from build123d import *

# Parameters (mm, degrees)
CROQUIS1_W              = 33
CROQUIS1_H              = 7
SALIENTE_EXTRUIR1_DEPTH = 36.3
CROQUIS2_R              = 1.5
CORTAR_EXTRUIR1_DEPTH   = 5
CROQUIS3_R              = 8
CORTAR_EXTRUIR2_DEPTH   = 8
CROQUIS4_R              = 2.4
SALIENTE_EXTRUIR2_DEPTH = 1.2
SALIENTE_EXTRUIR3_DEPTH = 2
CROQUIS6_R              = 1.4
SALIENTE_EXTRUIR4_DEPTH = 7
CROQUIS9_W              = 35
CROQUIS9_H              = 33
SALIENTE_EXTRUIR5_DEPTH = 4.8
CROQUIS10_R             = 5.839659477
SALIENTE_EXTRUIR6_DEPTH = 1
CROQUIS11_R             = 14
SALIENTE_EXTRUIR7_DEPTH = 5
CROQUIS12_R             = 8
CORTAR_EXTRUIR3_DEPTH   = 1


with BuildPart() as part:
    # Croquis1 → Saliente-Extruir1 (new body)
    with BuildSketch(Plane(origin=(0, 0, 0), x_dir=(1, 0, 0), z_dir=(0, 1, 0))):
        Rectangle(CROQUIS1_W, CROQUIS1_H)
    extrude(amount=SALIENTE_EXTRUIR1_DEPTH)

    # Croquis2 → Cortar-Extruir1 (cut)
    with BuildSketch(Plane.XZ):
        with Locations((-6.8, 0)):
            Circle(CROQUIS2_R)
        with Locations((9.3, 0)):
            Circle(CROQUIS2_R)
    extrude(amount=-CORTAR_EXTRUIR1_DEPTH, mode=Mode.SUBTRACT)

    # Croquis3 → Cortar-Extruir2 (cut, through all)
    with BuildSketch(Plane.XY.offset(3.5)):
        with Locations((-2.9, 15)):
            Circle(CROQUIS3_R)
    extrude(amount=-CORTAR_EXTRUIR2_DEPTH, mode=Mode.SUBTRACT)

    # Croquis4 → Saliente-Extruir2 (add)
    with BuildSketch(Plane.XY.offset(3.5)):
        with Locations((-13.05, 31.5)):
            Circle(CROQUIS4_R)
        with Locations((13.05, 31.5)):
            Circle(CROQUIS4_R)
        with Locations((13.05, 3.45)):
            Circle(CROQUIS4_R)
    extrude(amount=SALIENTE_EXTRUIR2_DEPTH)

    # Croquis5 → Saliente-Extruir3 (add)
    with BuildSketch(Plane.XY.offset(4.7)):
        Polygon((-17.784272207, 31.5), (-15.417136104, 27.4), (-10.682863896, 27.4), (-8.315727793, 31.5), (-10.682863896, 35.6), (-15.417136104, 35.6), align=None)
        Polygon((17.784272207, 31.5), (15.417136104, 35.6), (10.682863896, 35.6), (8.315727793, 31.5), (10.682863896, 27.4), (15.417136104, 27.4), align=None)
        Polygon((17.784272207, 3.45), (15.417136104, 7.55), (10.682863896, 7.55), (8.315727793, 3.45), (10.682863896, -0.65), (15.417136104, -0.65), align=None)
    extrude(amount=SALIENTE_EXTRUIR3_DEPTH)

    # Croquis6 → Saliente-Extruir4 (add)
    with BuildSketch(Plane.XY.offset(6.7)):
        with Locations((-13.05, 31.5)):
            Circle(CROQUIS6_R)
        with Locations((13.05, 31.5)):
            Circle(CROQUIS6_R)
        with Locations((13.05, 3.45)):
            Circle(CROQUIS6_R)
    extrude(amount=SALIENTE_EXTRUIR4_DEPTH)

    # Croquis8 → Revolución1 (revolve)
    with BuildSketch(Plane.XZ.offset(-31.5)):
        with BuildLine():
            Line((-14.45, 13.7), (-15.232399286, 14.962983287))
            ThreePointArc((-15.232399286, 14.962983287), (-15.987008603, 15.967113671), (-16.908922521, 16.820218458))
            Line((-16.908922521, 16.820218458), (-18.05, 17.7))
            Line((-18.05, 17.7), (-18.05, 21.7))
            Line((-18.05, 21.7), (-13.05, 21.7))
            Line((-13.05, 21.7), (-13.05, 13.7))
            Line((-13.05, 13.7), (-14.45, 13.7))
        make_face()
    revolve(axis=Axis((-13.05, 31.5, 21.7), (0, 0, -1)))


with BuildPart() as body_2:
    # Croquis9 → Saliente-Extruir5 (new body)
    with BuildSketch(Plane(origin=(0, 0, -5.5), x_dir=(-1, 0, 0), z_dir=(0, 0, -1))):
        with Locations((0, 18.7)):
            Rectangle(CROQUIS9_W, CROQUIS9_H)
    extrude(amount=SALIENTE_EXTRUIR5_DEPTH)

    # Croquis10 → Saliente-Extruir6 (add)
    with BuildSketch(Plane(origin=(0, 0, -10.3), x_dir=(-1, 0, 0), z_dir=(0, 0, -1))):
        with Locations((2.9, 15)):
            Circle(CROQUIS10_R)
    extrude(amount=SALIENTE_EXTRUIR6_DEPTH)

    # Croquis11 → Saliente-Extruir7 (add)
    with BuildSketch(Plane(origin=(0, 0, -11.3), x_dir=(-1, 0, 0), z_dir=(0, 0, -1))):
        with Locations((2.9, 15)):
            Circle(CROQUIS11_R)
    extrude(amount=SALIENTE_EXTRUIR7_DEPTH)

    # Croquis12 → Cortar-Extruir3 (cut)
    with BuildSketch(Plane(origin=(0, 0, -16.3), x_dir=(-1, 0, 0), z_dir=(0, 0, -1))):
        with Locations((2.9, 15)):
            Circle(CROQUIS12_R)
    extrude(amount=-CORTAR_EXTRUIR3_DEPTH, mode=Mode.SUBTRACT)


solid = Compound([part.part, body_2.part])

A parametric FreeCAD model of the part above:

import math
import FreeCAD as App
import Part
import Sketcher

V = App.Vector
Q = App.Units.Quantity

doc = App.newDocument("Part")
params = doc.addObject("Spreadsheet::Sheet", "Params")
for row, (alias, value) in enumerate([
    ("sketch1_width", "33 mm"),
    ("sketch1_height", "7 mm"),
    ("pad1_length", "36.3 mm"),
    ("sketch2_diameter", "3 mm"),
    ("pocket1_length", "5 mm"),
    ("sketch3_diameter", "16 mm"),
    ("sketch4_diameter", "4.8 mm"),
    ("pad2_length", "1.2 mm"),
    ("pad3_length", "2 mm"),
    ("sketch6_diameter", "2.8 mm"),
    ("pad4_length", "7 mm"),
    ("sketch7_radius", "7 mm"),
    ("sketch7_width", "5 mm"),
    ("sketch7_height", "8 mm"),
    ("sketch7_height2", "4 mm"),
    ("sketch7_width2", "1.4 mm"),
    ("revolution_angle", "360 deg"),
    ("sketch8_width", "35 mm"),
    ("sketch8_height", "33 mm"),
    ("pad5_length", "4.8 mm"),
    ("pad6_length", "1 mm"),
    ("sketch10_diameter", "28 mm"),
    ("pad7_length", "5 mm"),
    ("sketch11_diameter", "16 mm"),
    ("pocket3_length", "1 mm"),
], start=1):
    params.set(f"A{row}", alias)
    params.set(f"B{row}", "=" + value)
    params.setAlias(f"B{row}", alias)

body = doc.addObject("PartDesign::Body", "Body")

# Sketch on XZ plane
sketch1 = body.newObject("Sketcher::SketchObject", "Sketch")
sketch1.AttachmentSupport = (doc.getObject("XZ_Plane"), [""])
sketch1.MapMode = "FlatFace"
sketch1.addGeometry([
    Part.LineSegment(V(-16.5, -3.5, 0), V(-16.5, 3.5, 0)),
    Part.LineSegment(V(-16.5, 3.5, 0), V(16.5, 3.5, 0)),
    Part.LineSegment(V(16.5, 3.5, 0), V(16.5, -3.5, 0)),
    Part.LineSegment(V(16.5, -3.5, 0), V(-16.5, -3.5, 0)),
], False)
sketch1.addConstraint([
    Sketcher.Constraint("Coincident", 0, 2, 1, 1),
    Sketcher.Constraint("Coincident", 1, 2, 2, 1),
    Sketcher.Constraint("Coincident", 2, 2, 3, 1),
    Sketcher.Constraint("Coincident", 3, 2, 0, 1),
    Sketcher.Constraint("Vertical", 0),
    Sketcher.Constraint("Horizontal", 1),
    Sketcher.Constraint("Vertical", 2),
    Sketcher.Constraint("Horizontal", 3),
    Sketcher.Constraint("Symmetric", 0, 2, 2, 2, -1, 1),
    Sketcher.Constraint("DistanceX", 1, 1, 1, 2, 33.0),
    Sketcher.Constraint("DistanceY", 0, 1, 0, 2, 7.0),
])
sketch1.setExpression("Constraints[9]", "Params.sketch1_width")
sketch1.setExpression("Constraints[10]", "Params.sketch1_height")
pad1 = body.newObject("PartDesign::Pad", "Pad")
pad1.Profile = sketch1
pad1.setExpression("Length", "Params.pad1_length")
pad1.Reversed = True

# Sketch on XZ plane
sketch2 = body.newObject("Sketcher::SketchObject", "Sketch001")
sketch2.AttachmentSupport = (doc.getObject("XZ_Plane"), [""])
sketch2.MapMode = "FlatFace"
sketch2.addGeometry([
    Part.Circle(V(-6.8, 0, 0), V(0, 0, 1), 1.5),
    Part.Circle(V(9.3, 0, 0), V(0, 0, 1), 1.5),
], False)
sketch2.addConstraint([
    Sketcher.Constraint("Equal", 0, 1),
    Sketcher.Constraint("PointOnObject", 0, 3, -1),
    Sketcher.Constraint("PointOnObject", 1, 3, -1),
    Sketcher.Constraint("Diameter", 0, 3.0),
    Sketcher.Constraint("DistanceX", 0, 3, -1, 1, 6.8),
    Sketcher.Constraint("DistanceX", -1, 1, 1, 3, 9.3),
])
sketch2.setExpression("Constraints[3]", "Params.sketch2_diameter")
pocket1 = body.newObject("PartDesign::Pocket", "Pocket")
pocket1.Profile = sketch2
pocket1.setExpression("Length", "Params.pocket1_length")

# Sketch on XY plane
sketch3 = body.newObject("Sketcher::SketchObject", "Sketch002")
sketch3.AttachmentSupport = (doc.getObject("XY_Plane"), [""])
sketch3.MapMode = "FlatFace"
sketch3.AttachmentOffset = App.Placement(V(0, 0, 3.5), App.Rotation())
sketch3.addGeometry(Part.Circle(V(-2.9, 15, 0), V(0, 0, 1), 8), False)
sketch3.addConstraint([
    Sketcher.Constraint("Diameter", 0, 16.0),
    Sketcher.Constraint("DistanceY", -1, 1, 0, 3, 15.0),
    Sketcher.Constraint("DistanceX", 0, 3, -1, 1, 2.9),
])
sketch3.setExpression("Constraints[0]", "Params.sketch3_diameter")
pocket2 = body.newObject("PartDesign::Pocket", "Pocket001")
pocket2.Profile = sketch3
pocket2.Type = "ThroughAll"

# Sketch on XY plane
sketch4 = body.newObject("Sketcher::SketchObject", "Sketch003")
sketch4.AttachmentSupport = (doc.getObject("XY_Plane"), [""])
sketch4.MapMode = "FlatFace"
sketch4.AttachmentOffset = App.Placement(V(0, 0, 3.5), App.Rotation())
sketch4.addGeometry([
    Part.Circle(V(-13.05, 31.5, 0), V(0, 0, 1), 2.4),
    Part.Circle(V(13.05, 31.5, 0), V(0, 0, 1), 2.4),
    Part.Circle(V(13.05, 3.45, 0), V(0, 0, 1), 2.4),
], False)
sketch4.addConstraint([
    Sketcher.Constraint("Equal", 0, 1),
    Sketcher.Constraint("Equal", 1, 2),
    Sketcher.Constraint("Symmetric", 0, 3, 1, 3, -2),
    Sketcher.Constraint("Vertical", 1, 3, 2, 3),
    Sketcher.Constraint("Diameter", 0, 4.8),
    Sketcher.Constraint("DistanceY", -1, 1, 0, 3, 31.5),
    Sketcher.Constraint("DistanceX", 0, 3, 1, 3, 26.1),
    Sketcher.Constraint("DistanceY", -1, 1, 2, 3, 3.45),
])
sketch4.setExpression("Constraints[4]", "Params.sketch4_diameter")
pad2 = body.newObject("PartDesign::Pad", "Pad001")
pad2.Profile = sketch4
pad2.setExpression("Length", "Params.pad2_length")

# Sketch on XY plane
sketch5 = body.newObject("Sketcher::SketchObject", "Sketch004")
sketch5.AttachmentSupport = (doc.getObject("XY_Plane"), [""])
sketch5.MapMode = "FlatFace"
sketch5.AttachmentOffset = App.Placement(V(0, 0, 4.7), App.Rotation())
sketch5.addGeometry([
    Part.LineSegment(V(-17.784272, 31.5, 0), V(-15.417136, 27.4, 0)),  # 0
    Part.LineSegment(V(-15.417136, 27.4, 0), V(-10.682864, 27.4, 0)),  # 1
    Part.LineSegment(V(-10.682864, 27.4, 0), V(-8.315728, 31.5, 0)),  # 2
    Part.LineSegment(V(-8.315728, 31.5, 0), V(-10.682864, 35.6, 0)),  # 3
    Part.LineSegment(V(-10.682864, 35.6, 0), V(-15.417136, 35.6, 0)),  # 4
    Part.LineSegment(V(-15.417136, 35.6, 0), V(-17.784272, 31.5, 0)),  # 5
    Part.LineSegment(V(17.784272, 31.5, 0), V(15.417136, 35.6, 0)),  # 6
    Part.LineSegment(V(15.417136, 35.6, 0), V(10.682864, 35.6, 0)),  # 7
    Part.LineSegment(V(10.682864, 35.6, 0), V(8.315728, 31.5, 0)),  # 8
    Part.LineSegment(V(8.315728, 31.5, 0), V(10.682864, 27.4, 0)),  # 9
    Part.LineSegment(V(10.682864, 27.4, 0), V(15.417136, 27.4, 0)),  # 10
    Part.LineSegment(V(15.417136, 27.4, 0), V(17.784272, 31.5, 0)),  # 11
    Part.LineSegment(V(17.784272, 3.45, 0), V(15.417136, 7.55, 0)),  # 12
    Part.LineSegment(V(15.417136, 7.55, 0), V(10.682864, 7.55, 0)),  # 13
    Part.LineSegment(V(10.682864, 7.55, 0), V(8.315728, 3.45, 0)),  # 14
    Part.LineSegment(V(8.315728, 3.45, 0), V(10.682864, -0.65, 0)),  # 15
    Part.LineSegment(V(10.682864, -0.65, 0), V(15.417136, -0.65, 0)),  # 16
    Part.LineSegment(V(15.417136, -0.65, 0), V(17.784272, 3.45, 0)),  # 17
], False)
sketch5.addConstraint([
    Sketcher.Constraint("Coincident", 0, 2, 1, 1),
    Sketcher.Constraint("Coincident", 1, 2, 2, 1),
    Sketcher.Constraint("Coincident", 2, 2, 3, 1),
    Sketcher.Constraint("Coincident", 3, 2, 4, 1),
    Sketcher.Constraint("Coincident", 4, 2, 5, 1),
    Sketcher.Constraint("Coincident", 5, 2, 0, 1),
    Sketcher.Constraint("Coincident", 6, 2, 7, 1),
    Sketcher.Constraint("Coincident", 7, 2, 8, 1),
    Sketcher.Constraint("Coincident", 8, 2, 9, 1),
    Sketcher.Constraint("Coincident", 9, 2, 10, 1),
    Sketcher.Constraint("Coincident", 10, 2, 11, 1),
    Sketcher.Constraint("Coincident", 11, 2, 6, 1),
    Sketcher.Constraint("Coincident", 12, 2, 13, 1),
    Sketcher.Constraint("Coincident", 13, 2, 14, 1),
    Sketcher.Constraint("Coincident", 14, 2, 15, 1),
    Sketcher.Constraint("Coincident", 15, 2, 16, 1),
    Sketcher.Constraint("Coincident", 16, 2, 17, 1),
    Sketcher.Constraint("Coincident", 17, 2, 12, 1),
    Sketcher.Constraint("Horizontal", 1),
    Sketcher.Constraint("Horizontal", 4),
    Sketcher.Constraint("Horizontal", 7),
    Sketcher.Constraint("Horizontal", 10),
    Sketcher.Constraint("Horizontal", 13),
    Sketcher.Constraint("Horizontal", 16),
    Sketcher.Constraint("Symmetric", 4, 2, 6, 2, -2),
    Sketcher.Constraint("Symmetric", 2, 2, 8, 2, -2),
    Sketcher.Constraint("Symmetric", 1, 2, 9, 2, -2),
    Sketcher.Constraint("Symmetric", 5, 2, 11, 2, -2),
    Sketcher.Constraint("Parallel", 0, 3),
    Sketcher.Constraint("Parallel", 2, 5),
    Sketcher.Constraint("Parallel", 3, 6),
    Sketcher.Constraint("Parallel", 5, 8),
    Sketcher.Constraint("Parallel", 8, 11),
    Sketcher.Constraint("Parallel", 9, 12),
    Sketcher.Constraint("Parallel", 11, 14),
    Sketcher.Constraint("Parallel", 12, 15),
    Sketcher.Constraint("Parallel", 14, 17),
    Sketcher.Constraint("Horizontal", 2, 2, 5, 2),
    Sketcher.Constraint("Horizontal", 14, 2, 17, 2),
    Sketcher.Constraint("Vertical", 1, 2, 3, 2),
    Sketcher.Constraint("Vertical", 10, 2, 12, 2),
    Sketcher.Constraint("Vertical", 9, 2, 13, 2),
    Sketcher.Constraint("Vertical", 8, 2, 14, 2),
    Sketcher.Constraint("Vertical", 13, 2, 15, 2),
    Sketcher.Constraint("Angle", 0, Q("-60 deg")),
    Sketcher.Constraint("DistanceY", -1, 1, 0, 2, 27.4),
    Sketcher.Constraint("DistanceY", -1, 1, 2, 2, 31.5),
    Sketcher.Constraint("DistanceX", 3, 2, 6, 2, 26.1),
    Sketcher.Constraint("DistanceY", -1, 1, 12, 2, 7.55),
    Sketcher.Constraint("DistanceX", 1, 1, 1, 2, 4.734272),
])
pad3 = body.newObject("PartDesign::Pad", "Pad002")
pad3.Profile = sketch5
pad3.setExpression("Length", "Params.pad3_length")

# Sketch on XY plane
sketch6 = body.newObject("Sketcher::SketchObject", "Sketch005")
sketch6.AttachmentSupport = (doc.getObject("XY_Plane"), [""])
sketch6.MapMode = "FlatFace"
sketch6.AttachmentOffset = App.Placement(V(0, 0, 6.7), App.Rotation())
sketch6.addGeometry([
    Part.Circle(V(-13.05, 31.5, 0), V(0, 0, 1), 1.4),
    Part.Circle(V(13.05, 31.5, 0), V(0, 0, 1), 1.4),
    Part.Circle(V(13.05, 3.45, 0), V(0, 0, 1), 1.4),
], False)
sketch6.addConstraint([
    Sketcher.Constraint("Equal", 0, 1),
    Sketcher.Constraint("Equal", 1, 2),
    Sketcher.Constraint("Symmetric", 0, 3, 1, 3, -2),
    Sketcher.Constraint("Vertical", 1, 3, 2, 3),
    Sketcher.Constraint("Diameter", 0, 2.8),
    Sketcher.Constraint("DistanceY", -1, 1, 0, 3, 31.5),
    Sketcher.Constraint("DistanceX", 0, 3, 1, 3, 26.1),
    Sketcher.Constraint("DistanceY", -1, 1, 2, 3, 3.45),
])
sketch6.setExpression("Constraints[4]", "Params.sketch6_diameter")
pad4 = body.newObject("PartDesign::Pad", "Pad003")
pad4.Profile = sketch6
pad4.setExpression("Length", "Params.pad4_length")

# Sketch on XZ plane
sketch7 = body.newObject("Sketcher::SketchObject", "Sketch006")
sketch7.AttachmentSupport = (doc.getObject("XZ_Plane"), [""])
sketch7.MapMode = "FlatFace"
sketch7.AttachmentOffset = App.Placement(V(0, 0, -31.5), App.Rotation())
sketch7.addGeometry([
    Part.LineSegment(V(-15.232399, 14.962983, 0), V(-14.45, 13.7, 0)),  # 0
    Part.LineSegment(V(-14.45, 13.7, 0), V(-13.05, 13.7, 0)),  # 1
    Part.LineSegment(V(-13.05, 13.7, 0), V(-13.05, 21.7, 0)),  # 2
    Part.LineSegment(V(-13.05, 21.7, 0), V(-18.05, 21.7, 0)),  # 3
    Part.LineSegment(V(-18.05, 21.7, 0), V(-18.05, 17.7, 0)),  # 4
    Part.LineSegment(V(-18.05, 17.7, 0), V(-16.908923, 16.820218, 0)),  # 5
    Part.ArcOfCircle(Part.Circle(V(-21.18309, 11.276619, 0), V(0, 0, 1), 7), math.radians(31.777597), math.radians(52.367436)),  # 6
], False)
sketch7.addGeometry(Part.LineSegment(V(-13.05, 21.7, 0), V(-13.05, 11.276619, 0)), True)  # axis
sketch7.addConstraint([
    Sketcher.Constraint("Coincident", 0, 2, 1, 1),
    Sketcher.Constraint("Coincident", 1, 2, 2, 1),
    Sketcher.Constraint("Coincident", 2, 2, 3, 1),
    Sketcher.Constraint("Coincident", 3, 2, 4, 1),
    Sketcher.Constraint("Coincident", 4, 2, 5, 1),
    Sketcher.Constraint("Tangent", 5, 2, 6, 2),
    Sketcher.Constraint("Tangent", 6, 1, 0, 1),
    Sketcher.Constraint("Horizontal", 1),
    Sketcher.Constraint("Vertical", 2),
    Sketcher.Constraint("Horizontal", 3),
    Sketcher.Constraint("Vertical", 4),
    Sketcher.Constraint("Vertical", 7),
    Sketcher.Constraint("Coincident", 7, 1, 2, 2),
    Sketcher.Constraint("Horizontal", 6, 3, 7, 2),
    Sketcher.Constraint("Radius", 6, 7.0),
    Sketcher.Constraint("DistanceX", 3, 2, 3, 1, 5.0),
    Sketcher.Constraint("DistanceY", 2, 1, 2, 2, 8.0),
    Sketcher.Constraint("DistanceY", 4, 2, 4, 1, 4.0),
    Sketcher.Constraint("DistanceX", 1, 1, 1, 2, 1.4),
    Sketcher.Constraint("DistanceY", -1, 1, 0, 2, 13.7),
    Sketcher.Constraint("DistanceX", 0, 2, -1, 1, 14.45),
    Sketcher.Constraint("DistanceY", 7, 2, 7, 1, 10.423381),
    Sketcher.Constraint("DistanceX", 6, 1, -1, 1, 15.232399),
])
sketch7.setExpression("Constraints[14]", "Params.sketch7_radius")
sketch7.setExpression("Constraints[15]", "Params.sketch7_width")
sketch7.setExpression("Constraints[16]", "Params.sketch7_height")
sketch7.setExpression("Constraints[17]", "Params.sketch7_height2")
sketch7.setExpression("Constraints[18]", "Params.sketch7_width2")
revolution = body.newObject("PartDesign::Revolution", "Revolution")
revolution.Profile = sketch7
revolution.ReferenceAxis = (sketch7, ["Axis0"])
revolution.setExpression("Angle", "Params.revolution_angle")
body2 = doc.addObject("PartDesign::Body", "Body001")

# Sketch on XY plane
sketch8 = body2.newObject("Sketcher::SketchObject", "Sketch007")
sketch8.AttachmentSupport = (doc.getObject("XY_Plane001"), [""])
sketch8.MapMode = "FlatFace"
sketch8.AttachmentOffset = App.Placement(V(0, 0, -5.5), App.Rotation())
sketch8.addGeometry([
    Part.LineSegment(V(17.5, 35.2, 0), V(17.5, 2.2, 0)),
    Part.LineSegment(V(17.5, 2.2, 0), V(-17.5, 2.2, 0)),
    Part.LineSegment(V(-17.5, 2.2, 0), V(-17.5, 35.2, 0)),
    Part.LineSegment(V(-17.5, 35.2, 0), V(17.5, 35.2, 0)),
], False)
sketch8.addConstraint([
    Sketcher.Constraint("Coincident", 0, 2, 1, 1),
    Sketcher.Constraint("Coincident", 1, 2, 2, 1),
    Sketcher.Constraint("Coincident", 2, 2, 3, 1),
    Sketcher.Constraint("Coincident", 3, 2, 0, 1),
    Sketcher.Constraint("Vertical", 0),
    Sketcher.Constraint("Horizontal", 1),
    Sketcher.Constraint("Vertical", 2),
    Sketcher.Constraint("Horizontal", 3),
    Sketcher.Constraint("DistanceX", 1, 2, 1, 1, 35.0),
    Sketcher.Constraint("DistanceY", 0, 2, 0, 1, 33.0),
    Sketcher.Constraint("DistanceX", -1, 1, 0, 2, 17.5),
    Sketcher.Constraint("DistanceY", -1, 1, 0, 2, 2.2),
])
sketch8.setExpression("Constraints[8]", "Params.sketch8_width")
sketch8.setExpression("Constraints[9]", "Params.sketch8_height")
pad5 = body2.newObject("PartDesign::Pad", "Pad004")
pad5.Profile = sketch8
pad5.setExpression("Length", "Params.pad5_length")
pad5.Reversed = True

# Sketch on XY plane
sketch9 = body2.newObject("Sketcher::SketchObject", "Sketch008")
sketch9.AttachmentSupport = (doc.getObject("XY_Plane001"), [""])
sketch9.MapMode = "FlatFace"
sketch9.AttachmentOffset = App.Placement(V(0, 0, -10.3), App.Rotation())
sketch9.addGeometry(Part.Circle(V(-2.9, 15, 0), V(0, 0, 1), 5.839659), False)
sketch9.addConstraint([
    Sketcher.Constraint("DistanceY", -1, 1, 0, 3, 15.0),
    Sketcher.Constraint("DistanceX", 0, 3, -1, 1, 2.9),
    Sketcher.Constraint("Diameter", 0, 11.679319),
])
pad6 = body2.newObject("PartDesign::Pad", "Pad005")
pad6.Profile = sketch9
pad6.setExpression("Length", "Params.pad6_length")
pad6.Reversed = True

# Sketch on XY plane
sketch10 = body2.newObject("Sketcher::SketchObject", "Sketch009")
sketch10.AttachmentSupport = (doc.getObject("XY_Plane001"), [""])
sketch10.MapMode = "FlatFace"
sketch10.AttachmentOffset = App.Placement(V(0, 0, -11.3), App.Rotation())
sketch10.addGeometry(Part.Circle(V(-2.9, 15, 0), V(0, 0, 1), 14), False)
sketch10.addConstraint([
    Sketcher.Constraint("Diameter", 0, 28.0),
    Sketcher.Constraint("DistanceY", -1, 1, 0, 3, 15.0),
    Sketcher.Constraint("DistanceX", 0, 3, -1, 1, 2.9),
])
sketch10.setExpression("Constraints[0]", "Params.sketch10_diameter")
pad7 = body2.newObject("PartDesign::Pad", "Pad006")
pad7.Profile = sketch10
pad7.setExpression("Length", "Params.pad7_length")
pad7.Reversed = True

# Sketch on XY plane
sketch11 = body2.newObject("Sketcher::SketchObject", "Sketch010")
sketch11.AttachmentSupport = (doc.getObject("XY_Plane001"), [""])
sketch11.MapMode = "FlatFace"
sketch11.AttachmentOffset = App.Placement(V(0, 0, -16.3), App.Rotation())
sketch11.addGeometry(Part.Circle(V(-2.9, 15, 0), V(0, 0, 1), 8), False)
sketch11.addConstraint([
    Sketcher.Constraint("Diameter", 0, 16.0),
    Sketcher.Constraint("DistanceY", -1, 1, 0, 3, 15.0),
    Sketcher.Constraint("DistanceX", 0, 3, -1, 1, 2.9),
])
sketch11.setExpression("Constraints[0]", "Params.sketch11_diameter")
pocket3 = body2.newObject("PartDesign::Pocket", "Pocket002")
pocket3.Profile = sketch11
pocket3.setExpression("Length", "Params.pocket3_length")
pocket3.Reversed = True

doc.recompute()
